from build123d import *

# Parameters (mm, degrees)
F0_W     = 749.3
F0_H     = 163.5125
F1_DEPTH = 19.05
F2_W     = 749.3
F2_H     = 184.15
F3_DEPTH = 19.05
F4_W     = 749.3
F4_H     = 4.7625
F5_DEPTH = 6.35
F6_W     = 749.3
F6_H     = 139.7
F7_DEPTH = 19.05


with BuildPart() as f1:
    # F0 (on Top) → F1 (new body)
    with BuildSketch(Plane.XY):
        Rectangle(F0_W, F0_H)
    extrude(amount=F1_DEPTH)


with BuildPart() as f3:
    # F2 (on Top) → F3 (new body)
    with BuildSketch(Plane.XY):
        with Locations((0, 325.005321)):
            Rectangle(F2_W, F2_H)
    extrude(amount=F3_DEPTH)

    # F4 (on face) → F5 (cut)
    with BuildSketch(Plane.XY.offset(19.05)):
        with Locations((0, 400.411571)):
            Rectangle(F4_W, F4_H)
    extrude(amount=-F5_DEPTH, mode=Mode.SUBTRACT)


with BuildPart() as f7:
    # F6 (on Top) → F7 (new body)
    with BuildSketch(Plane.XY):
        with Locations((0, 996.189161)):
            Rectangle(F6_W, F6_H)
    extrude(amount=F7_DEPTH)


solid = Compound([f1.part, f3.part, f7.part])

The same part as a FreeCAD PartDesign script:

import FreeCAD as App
import Part
import Sketcher
Q = App.Units.Quantity


def add_polygon(sketch, points):
    """Adds a closed chain of lines whose ends are joined by coincident constraints."""
    first, n = sketch.GeometryCount, len(points)
    for a, b in zip(points, points[1:] + points[:1]):
        sketch.addGeometry(Part.LineSegment(App.Vector(*a, 0), App.Vector(*b, 0)), False)
    for i in range(n):
        sketch.addConstraint(Sketcher.Constraint("Coincident", first + i, 2, first + (i + 1) % n, 1))

doc = App.newDocument("Part")
body = doc.addObject("PartDesign::Body", "Body")

sketch1 = body.newObject("Sketcher::SketchObject", "Sketch")
sketch1.AttachmentSupport = (doc.getObject("XY_Plane"), [""])
sketch1.MapMode = "FlatFace"
add_polygon(sketch1, [(-374.65, 81.75625), (-374.65, -81.75625), (374.65, -81.75625), (374.65, 81.75625)])
sketch1.addConstraint([
    Sketcher.Constraint("Vertical", 0),
    Sketcher.Constraint("Horizontal", 1),
    Sketcher.Constraint("Vertical", 2),
    Sketcher.Constraint("Horizontal", 3),
    Sketcher.Constraint("Symmetric", 0, 2, 2, 2, -1, 1),
    Sketcher.Constraint("DistanceX", 1, 1, 1, 2, Q("29.5 in")),
    Sketcher.Constraint("DistanceY", 0, 2, 0, 1, Q("6.4375 in")),
])
pad1 = body.newObject("PartDesign::Pad", "Pad")
pad1.Profile = sketch1
pad1.Length = Q("0.75 in")
body2 = doc.addObject("PartDesign::Body", "Body001")

sketch2 = body2.newObject("Sketcher::SketchObject", "Sketch001")
sketch2.AttachmentSupport = (doc.getObject("XY_Plane001"), [""])
sketch2.MapMode = "FlatFace"
add_polygon(sketch2, [(-374.65, 417.080321), (-374.65, 232.930321), (374.65, 232.930321), (374.65, 417.080321)])
sketch2.addConstraint([
    Sketcher.Constraint("Vertical", 0),
    Sketcher.Constraint("Horizontal", 1),
    Sketcher.Constraint("Vertical", 2),
    Sketcher.Constraint("Horizontal", 3),
    Sketcher.Constraint("DistanceX", 1, 1, 1, 2, Q("29.5 in")),
    Sketcher.Constraint("DistanceY", 0, 2, 0, 1, Q("7.25 in")),
    Sketcher.Constraint("DistanceX", 0, 2, -1, 1, Q("14.75 in")),
    Sketcher.Constraint("DistanceY", -1, 1, 0, 2, 232.930321),
])
pad2 = body2.newObject("PartDesign::Pad", "Pad001")
pad2.Profile = sketch2
pad2.Length = Q("0.75 in")

sketch3 = body2.newObject("Sketcher::SketchObject", "Sketch002")
sketch3.AttachmentSupport = (doc.getObject("XY_Plane001"), [""])
sketch3.MapMode = "FlatFace"
sketch3.AttachmentOffset = App.Placement(App.Vector(0, 0, 0.75 * 25.4), App.Rotation())
add_polygon(sketch3, [(-374.65, 402.792821), (-374.65, 398.030321), (374.65, 398.030321), (374.65, 402.792821)])
sketch3.addConstraint([
    Sketcher.Constraint("Vertical", 0),
    Sketcher.Constraint("Horizontal", 1),
    Sketcher.Constraint("Vertical", 2),
    Sketcher.Constraint("Horizontal", 3),
    Sketcher.Constraint("DistanceX", 1, 1, 1, 2, Q("29.5 in")),
    Sketcher.Constraint("DistanceY", 0, 2, 0, 1, Q("0.1875 in")),
    Sketcher.Constraint("DistanceX", 0, 2, -1, 1, Q("14.75 in")),
    Sketcher.Constraint("DistanceY", -1, 1, 0, 2, 398.030321),
])
pocket1 = body2.newObject("PartDesign::Pocket", "Pocket")
pocket1.Profile = sketch3
pocket1.Length = Q("0.25 in")
body3 = doc.addObject("PartDesign::Body", "Body002")

sketch4 = body3.newObject("Sketcher::SketchObject", "Sketch003")
sketch4.AttachmentSupport = (doc.getObject("XY_Plane002"), [""])
sketch4.MapMode = "FlatFace"
add_polygon(sketch4, [(-374.65, 1066.039161), (-374.65, 926.339161), (374.65, 926.339161), (374.65, 1066.039161)])
sketch4.addConstraint([
    Sketcher.Constraint("Vertical", 0),
    Sketcher.Constraint("Horizontal", 1),
    Sketcher.Constraint("Vertical", 2),
    Sketcher.Constraint("Horizontal", 3),
    Sketcher.Constraint("DistanceX", 1, 1, 1, 2, Q("29.5 in")),
    Sketcher.Constraint("DistanceY", 0, 2, 0, 1, Q("5.5 in")),
    Sketcher.Constraint("DistanceX", 0, 2, -1, 1, Q("14.75 in")),
    Sketcher.Constraint("DistanceY", -1, 1, 0, 2, 926.339161),
])
pad3 = body3.newObject("PartDesign::Pad", "Pad002")
pad3.Profile = sketch4
pad3.Length = Q("0.75 in")

doc.recompute()
